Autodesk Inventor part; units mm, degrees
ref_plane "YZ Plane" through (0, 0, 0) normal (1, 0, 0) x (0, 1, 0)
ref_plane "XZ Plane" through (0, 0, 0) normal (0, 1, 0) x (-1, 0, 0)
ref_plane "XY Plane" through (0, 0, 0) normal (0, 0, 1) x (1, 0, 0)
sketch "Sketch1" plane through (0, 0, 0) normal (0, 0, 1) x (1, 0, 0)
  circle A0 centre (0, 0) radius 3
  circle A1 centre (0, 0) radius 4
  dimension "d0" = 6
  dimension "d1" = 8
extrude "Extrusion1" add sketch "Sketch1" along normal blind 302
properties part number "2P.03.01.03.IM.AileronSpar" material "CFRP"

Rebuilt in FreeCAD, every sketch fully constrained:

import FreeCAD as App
import Part
import Sketcher
from FreeCAD import Vector
Q = App.Units.Quantity

doc = App.newDocument("Part")
body = doc.addObject("PartDesign::Body", "Body")

# Sketch on XY plane
sketch1 = body.newObject("Sketcher::SketchObject", "Sketch")
sketch1.AttachmentSupport = (doc.getObject("XY_Plane"), [""])
sketch1.MapMode = "FlatFace"
sketch1.addGeometry(Part.Circle(Vector(0, 0, 0), Vector(0, 0, 1), 4), False)
sketch1.addGeometry(Part.Circle(Vector(0, 0, 0), Vector(0, 0, 1), 3), False)
sketch1.addConstraint(Sketcher.Constraint("Coincident", 0, 3, -1, 1))
sketch1.addConstraint(Sketcher.Constraint("Coincident", 1, 3, -1, 1))
sketch1.addConstraint(Sketcher.Constraint("Diameter", 0, Q("8 mm")))
sketch1.addConstraint(Sketcher.Constraint("Diameter", 1, Q("6 mm")))
pad1 = body.newObject("PartDesign::Pad", "Pad")
pad1.Profile = sketch1
pad1.Length = 302

doc.recompute()
